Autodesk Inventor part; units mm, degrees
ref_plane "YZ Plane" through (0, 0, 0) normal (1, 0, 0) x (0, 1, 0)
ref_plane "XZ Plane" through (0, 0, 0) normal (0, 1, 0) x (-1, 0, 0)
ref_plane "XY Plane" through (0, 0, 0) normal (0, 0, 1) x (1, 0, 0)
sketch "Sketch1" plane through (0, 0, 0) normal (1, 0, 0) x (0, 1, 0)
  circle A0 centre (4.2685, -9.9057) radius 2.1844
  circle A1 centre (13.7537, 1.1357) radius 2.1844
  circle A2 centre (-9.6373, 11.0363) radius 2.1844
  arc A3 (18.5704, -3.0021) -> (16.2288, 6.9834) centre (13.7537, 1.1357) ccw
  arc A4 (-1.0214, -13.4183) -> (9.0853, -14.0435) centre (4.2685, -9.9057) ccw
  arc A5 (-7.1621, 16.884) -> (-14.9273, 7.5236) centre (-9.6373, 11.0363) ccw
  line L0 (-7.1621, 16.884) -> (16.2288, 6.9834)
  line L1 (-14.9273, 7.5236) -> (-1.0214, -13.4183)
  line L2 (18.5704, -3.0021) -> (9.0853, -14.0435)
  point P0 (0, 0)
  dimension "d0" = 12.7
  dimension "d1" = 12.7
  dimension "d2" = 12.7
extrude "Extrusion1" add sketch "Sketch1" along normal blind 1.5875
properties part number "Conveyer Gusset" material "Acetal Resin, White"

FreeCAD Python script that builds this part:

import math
import FreeCAD as App
import Part
import Sketcher
Q = App.Units.Quantity

doc = App.newDocument("Part")
params = doc.addObject("Spreadsheet::Sheet", "Params")
for row, (alias, value) in enumerate([
    ("sketch1_radius", "0.25 in"),
    ("sketch1_length", "1 in"),
    ("sketch1_diameter", "0.172 in"),
    ("pad1_length", "0.0625 in"),
], start=1):
    params.set(f"A{row}", alias)
    params.set(f"B{row}", "=" + value)
    params.setAlias(f"B{row}", alias)

body = doc.addObject("PartDesign::Body", "Body")

sketch1 = doc.addObject("Sketcher::SketchObject", "Sketch")
body.addObject(sketch1)
sketch1.AttachmentSupport = (doc.YZ_Plane, [""])
sketch1.MapMode = "FlatFace"
sketch1.addGeometry([
    Part.LineSegment(App.Vector(9.0853, -14.0435, 0), App.Vector(18.5704, -3.0021, 0)),
    Part.ArcOfCircle(Part.Circle(App.Vector(13.7537, 1.1357, 0), App.Vector(0, 0, 1), 6.34996), math.radians(-40.664322), math.radians(67.058982)),
    Part.LineSegment(App.Vector(16.2288, 6.9834, 0), App.Vector(-7.1621, 16.884, 0)),
    Part.ArcOfCircle(Part.Circle(App.Vector(-9.6373, 11.0363, 0), App.Vector(0, 0, 1), 6.349977), math.radians(67.058151), math.radians(213.585213)),
    Part.LineSegment(App.Vector(-14.9273, 7.5236, 0), App.Vector(-1.0214, -13.4183, 0)),
    Part.ArcOfCircle(Part.Circle(App.Vector(4.2685, -9.9057, 0), App.Vector(0, 0, 1), 6.349913), math.radians(-146.41504), math.radians(-40.663734)),
    Part.Circle(App.Vector(4.2685, -9.9057, 0), App.Vector(0, 0, 1), 2.1844),
    Part.Circle(App.Vector(-9.6373, 11.0363, 0), App.Vector(0, 0, 1), 2.1844),
    Part.Circle(App.Vector(13.7537, 1.1357, 0), App.Vector(0, 0, 1), 2.1844),
], False)
sketch1.addConstraint([
    Sketcher.Constraint("Tangent", 0, 2, 1, 1),
    Sketcher.Constraint("Tangent", 1, 2, 2, 1),
    Sketcher.Constraint("Tangent", 2, 2, 3, 1),
    Sketcher.Constraint("Tangent", 3, 2, 4, 1),
    Sketcher.Constraint("Tangent", 4, 2, 5, 1),
    Sketcher.Constraint("Tangent", 5, 2, 0, 1),
    Sketcher.Constraint("Coincident", 6, 3, 5, 3),
    Sketcher.Constraint("Coincident", 7, 3, 3, 3),
    Sketcher.Constraint("Coincident", 8, 3, 1, 3),
    Sketcher.Constraint("Equal", 1, 3),
    Sketcher.Constraint("Equal", 3, 5),
    Sketcher.Constraint("Equal", 6, 7),
    Sketcher.Constraint("Equal", 7, 8),
    Sketcher.Constraint("Radius", 1, Q("0.25 in")),
    Sketcher.Constraint("Distance", 2, Q("1 in")),
    Sketcher.Constraint("Diameter", 6, Q("0.172 in")),
    Sketcher.Constraint("DistanceY", 5, 3, -1, 1, Q("0.39 in")),
    Sketcher.Constraint("DistanceY", 1, 3, 2, 2, Q("0.62 in")),
    Sketcher.Constraint("DistanceY", 4, 2, 1, 3, Q("0.573 in")),
    Sketcher.Constraint("Distance", 4, Q("0.9897 in")),
    Sketcher.Constraint("DistanceX", -1, 1, 1, 3, Q("13.7537 mm")),
])
sketch1.setExpression("Constraints[13]", "Params.sketch1_radius")
sketch1.setExpression("Constraints[14]", "Params.sketch1_length")
sketch1.setExpression("Constraints[15]", "Params.sketch1_diameter")
pad1 = doc.addObject("PartDesign::Pad", "Pad")
body.addObject(pad1)
pad1.Profile = sketch1
pad1.setExpression("Length", "Params.pad1_length")

doc.recompute()
